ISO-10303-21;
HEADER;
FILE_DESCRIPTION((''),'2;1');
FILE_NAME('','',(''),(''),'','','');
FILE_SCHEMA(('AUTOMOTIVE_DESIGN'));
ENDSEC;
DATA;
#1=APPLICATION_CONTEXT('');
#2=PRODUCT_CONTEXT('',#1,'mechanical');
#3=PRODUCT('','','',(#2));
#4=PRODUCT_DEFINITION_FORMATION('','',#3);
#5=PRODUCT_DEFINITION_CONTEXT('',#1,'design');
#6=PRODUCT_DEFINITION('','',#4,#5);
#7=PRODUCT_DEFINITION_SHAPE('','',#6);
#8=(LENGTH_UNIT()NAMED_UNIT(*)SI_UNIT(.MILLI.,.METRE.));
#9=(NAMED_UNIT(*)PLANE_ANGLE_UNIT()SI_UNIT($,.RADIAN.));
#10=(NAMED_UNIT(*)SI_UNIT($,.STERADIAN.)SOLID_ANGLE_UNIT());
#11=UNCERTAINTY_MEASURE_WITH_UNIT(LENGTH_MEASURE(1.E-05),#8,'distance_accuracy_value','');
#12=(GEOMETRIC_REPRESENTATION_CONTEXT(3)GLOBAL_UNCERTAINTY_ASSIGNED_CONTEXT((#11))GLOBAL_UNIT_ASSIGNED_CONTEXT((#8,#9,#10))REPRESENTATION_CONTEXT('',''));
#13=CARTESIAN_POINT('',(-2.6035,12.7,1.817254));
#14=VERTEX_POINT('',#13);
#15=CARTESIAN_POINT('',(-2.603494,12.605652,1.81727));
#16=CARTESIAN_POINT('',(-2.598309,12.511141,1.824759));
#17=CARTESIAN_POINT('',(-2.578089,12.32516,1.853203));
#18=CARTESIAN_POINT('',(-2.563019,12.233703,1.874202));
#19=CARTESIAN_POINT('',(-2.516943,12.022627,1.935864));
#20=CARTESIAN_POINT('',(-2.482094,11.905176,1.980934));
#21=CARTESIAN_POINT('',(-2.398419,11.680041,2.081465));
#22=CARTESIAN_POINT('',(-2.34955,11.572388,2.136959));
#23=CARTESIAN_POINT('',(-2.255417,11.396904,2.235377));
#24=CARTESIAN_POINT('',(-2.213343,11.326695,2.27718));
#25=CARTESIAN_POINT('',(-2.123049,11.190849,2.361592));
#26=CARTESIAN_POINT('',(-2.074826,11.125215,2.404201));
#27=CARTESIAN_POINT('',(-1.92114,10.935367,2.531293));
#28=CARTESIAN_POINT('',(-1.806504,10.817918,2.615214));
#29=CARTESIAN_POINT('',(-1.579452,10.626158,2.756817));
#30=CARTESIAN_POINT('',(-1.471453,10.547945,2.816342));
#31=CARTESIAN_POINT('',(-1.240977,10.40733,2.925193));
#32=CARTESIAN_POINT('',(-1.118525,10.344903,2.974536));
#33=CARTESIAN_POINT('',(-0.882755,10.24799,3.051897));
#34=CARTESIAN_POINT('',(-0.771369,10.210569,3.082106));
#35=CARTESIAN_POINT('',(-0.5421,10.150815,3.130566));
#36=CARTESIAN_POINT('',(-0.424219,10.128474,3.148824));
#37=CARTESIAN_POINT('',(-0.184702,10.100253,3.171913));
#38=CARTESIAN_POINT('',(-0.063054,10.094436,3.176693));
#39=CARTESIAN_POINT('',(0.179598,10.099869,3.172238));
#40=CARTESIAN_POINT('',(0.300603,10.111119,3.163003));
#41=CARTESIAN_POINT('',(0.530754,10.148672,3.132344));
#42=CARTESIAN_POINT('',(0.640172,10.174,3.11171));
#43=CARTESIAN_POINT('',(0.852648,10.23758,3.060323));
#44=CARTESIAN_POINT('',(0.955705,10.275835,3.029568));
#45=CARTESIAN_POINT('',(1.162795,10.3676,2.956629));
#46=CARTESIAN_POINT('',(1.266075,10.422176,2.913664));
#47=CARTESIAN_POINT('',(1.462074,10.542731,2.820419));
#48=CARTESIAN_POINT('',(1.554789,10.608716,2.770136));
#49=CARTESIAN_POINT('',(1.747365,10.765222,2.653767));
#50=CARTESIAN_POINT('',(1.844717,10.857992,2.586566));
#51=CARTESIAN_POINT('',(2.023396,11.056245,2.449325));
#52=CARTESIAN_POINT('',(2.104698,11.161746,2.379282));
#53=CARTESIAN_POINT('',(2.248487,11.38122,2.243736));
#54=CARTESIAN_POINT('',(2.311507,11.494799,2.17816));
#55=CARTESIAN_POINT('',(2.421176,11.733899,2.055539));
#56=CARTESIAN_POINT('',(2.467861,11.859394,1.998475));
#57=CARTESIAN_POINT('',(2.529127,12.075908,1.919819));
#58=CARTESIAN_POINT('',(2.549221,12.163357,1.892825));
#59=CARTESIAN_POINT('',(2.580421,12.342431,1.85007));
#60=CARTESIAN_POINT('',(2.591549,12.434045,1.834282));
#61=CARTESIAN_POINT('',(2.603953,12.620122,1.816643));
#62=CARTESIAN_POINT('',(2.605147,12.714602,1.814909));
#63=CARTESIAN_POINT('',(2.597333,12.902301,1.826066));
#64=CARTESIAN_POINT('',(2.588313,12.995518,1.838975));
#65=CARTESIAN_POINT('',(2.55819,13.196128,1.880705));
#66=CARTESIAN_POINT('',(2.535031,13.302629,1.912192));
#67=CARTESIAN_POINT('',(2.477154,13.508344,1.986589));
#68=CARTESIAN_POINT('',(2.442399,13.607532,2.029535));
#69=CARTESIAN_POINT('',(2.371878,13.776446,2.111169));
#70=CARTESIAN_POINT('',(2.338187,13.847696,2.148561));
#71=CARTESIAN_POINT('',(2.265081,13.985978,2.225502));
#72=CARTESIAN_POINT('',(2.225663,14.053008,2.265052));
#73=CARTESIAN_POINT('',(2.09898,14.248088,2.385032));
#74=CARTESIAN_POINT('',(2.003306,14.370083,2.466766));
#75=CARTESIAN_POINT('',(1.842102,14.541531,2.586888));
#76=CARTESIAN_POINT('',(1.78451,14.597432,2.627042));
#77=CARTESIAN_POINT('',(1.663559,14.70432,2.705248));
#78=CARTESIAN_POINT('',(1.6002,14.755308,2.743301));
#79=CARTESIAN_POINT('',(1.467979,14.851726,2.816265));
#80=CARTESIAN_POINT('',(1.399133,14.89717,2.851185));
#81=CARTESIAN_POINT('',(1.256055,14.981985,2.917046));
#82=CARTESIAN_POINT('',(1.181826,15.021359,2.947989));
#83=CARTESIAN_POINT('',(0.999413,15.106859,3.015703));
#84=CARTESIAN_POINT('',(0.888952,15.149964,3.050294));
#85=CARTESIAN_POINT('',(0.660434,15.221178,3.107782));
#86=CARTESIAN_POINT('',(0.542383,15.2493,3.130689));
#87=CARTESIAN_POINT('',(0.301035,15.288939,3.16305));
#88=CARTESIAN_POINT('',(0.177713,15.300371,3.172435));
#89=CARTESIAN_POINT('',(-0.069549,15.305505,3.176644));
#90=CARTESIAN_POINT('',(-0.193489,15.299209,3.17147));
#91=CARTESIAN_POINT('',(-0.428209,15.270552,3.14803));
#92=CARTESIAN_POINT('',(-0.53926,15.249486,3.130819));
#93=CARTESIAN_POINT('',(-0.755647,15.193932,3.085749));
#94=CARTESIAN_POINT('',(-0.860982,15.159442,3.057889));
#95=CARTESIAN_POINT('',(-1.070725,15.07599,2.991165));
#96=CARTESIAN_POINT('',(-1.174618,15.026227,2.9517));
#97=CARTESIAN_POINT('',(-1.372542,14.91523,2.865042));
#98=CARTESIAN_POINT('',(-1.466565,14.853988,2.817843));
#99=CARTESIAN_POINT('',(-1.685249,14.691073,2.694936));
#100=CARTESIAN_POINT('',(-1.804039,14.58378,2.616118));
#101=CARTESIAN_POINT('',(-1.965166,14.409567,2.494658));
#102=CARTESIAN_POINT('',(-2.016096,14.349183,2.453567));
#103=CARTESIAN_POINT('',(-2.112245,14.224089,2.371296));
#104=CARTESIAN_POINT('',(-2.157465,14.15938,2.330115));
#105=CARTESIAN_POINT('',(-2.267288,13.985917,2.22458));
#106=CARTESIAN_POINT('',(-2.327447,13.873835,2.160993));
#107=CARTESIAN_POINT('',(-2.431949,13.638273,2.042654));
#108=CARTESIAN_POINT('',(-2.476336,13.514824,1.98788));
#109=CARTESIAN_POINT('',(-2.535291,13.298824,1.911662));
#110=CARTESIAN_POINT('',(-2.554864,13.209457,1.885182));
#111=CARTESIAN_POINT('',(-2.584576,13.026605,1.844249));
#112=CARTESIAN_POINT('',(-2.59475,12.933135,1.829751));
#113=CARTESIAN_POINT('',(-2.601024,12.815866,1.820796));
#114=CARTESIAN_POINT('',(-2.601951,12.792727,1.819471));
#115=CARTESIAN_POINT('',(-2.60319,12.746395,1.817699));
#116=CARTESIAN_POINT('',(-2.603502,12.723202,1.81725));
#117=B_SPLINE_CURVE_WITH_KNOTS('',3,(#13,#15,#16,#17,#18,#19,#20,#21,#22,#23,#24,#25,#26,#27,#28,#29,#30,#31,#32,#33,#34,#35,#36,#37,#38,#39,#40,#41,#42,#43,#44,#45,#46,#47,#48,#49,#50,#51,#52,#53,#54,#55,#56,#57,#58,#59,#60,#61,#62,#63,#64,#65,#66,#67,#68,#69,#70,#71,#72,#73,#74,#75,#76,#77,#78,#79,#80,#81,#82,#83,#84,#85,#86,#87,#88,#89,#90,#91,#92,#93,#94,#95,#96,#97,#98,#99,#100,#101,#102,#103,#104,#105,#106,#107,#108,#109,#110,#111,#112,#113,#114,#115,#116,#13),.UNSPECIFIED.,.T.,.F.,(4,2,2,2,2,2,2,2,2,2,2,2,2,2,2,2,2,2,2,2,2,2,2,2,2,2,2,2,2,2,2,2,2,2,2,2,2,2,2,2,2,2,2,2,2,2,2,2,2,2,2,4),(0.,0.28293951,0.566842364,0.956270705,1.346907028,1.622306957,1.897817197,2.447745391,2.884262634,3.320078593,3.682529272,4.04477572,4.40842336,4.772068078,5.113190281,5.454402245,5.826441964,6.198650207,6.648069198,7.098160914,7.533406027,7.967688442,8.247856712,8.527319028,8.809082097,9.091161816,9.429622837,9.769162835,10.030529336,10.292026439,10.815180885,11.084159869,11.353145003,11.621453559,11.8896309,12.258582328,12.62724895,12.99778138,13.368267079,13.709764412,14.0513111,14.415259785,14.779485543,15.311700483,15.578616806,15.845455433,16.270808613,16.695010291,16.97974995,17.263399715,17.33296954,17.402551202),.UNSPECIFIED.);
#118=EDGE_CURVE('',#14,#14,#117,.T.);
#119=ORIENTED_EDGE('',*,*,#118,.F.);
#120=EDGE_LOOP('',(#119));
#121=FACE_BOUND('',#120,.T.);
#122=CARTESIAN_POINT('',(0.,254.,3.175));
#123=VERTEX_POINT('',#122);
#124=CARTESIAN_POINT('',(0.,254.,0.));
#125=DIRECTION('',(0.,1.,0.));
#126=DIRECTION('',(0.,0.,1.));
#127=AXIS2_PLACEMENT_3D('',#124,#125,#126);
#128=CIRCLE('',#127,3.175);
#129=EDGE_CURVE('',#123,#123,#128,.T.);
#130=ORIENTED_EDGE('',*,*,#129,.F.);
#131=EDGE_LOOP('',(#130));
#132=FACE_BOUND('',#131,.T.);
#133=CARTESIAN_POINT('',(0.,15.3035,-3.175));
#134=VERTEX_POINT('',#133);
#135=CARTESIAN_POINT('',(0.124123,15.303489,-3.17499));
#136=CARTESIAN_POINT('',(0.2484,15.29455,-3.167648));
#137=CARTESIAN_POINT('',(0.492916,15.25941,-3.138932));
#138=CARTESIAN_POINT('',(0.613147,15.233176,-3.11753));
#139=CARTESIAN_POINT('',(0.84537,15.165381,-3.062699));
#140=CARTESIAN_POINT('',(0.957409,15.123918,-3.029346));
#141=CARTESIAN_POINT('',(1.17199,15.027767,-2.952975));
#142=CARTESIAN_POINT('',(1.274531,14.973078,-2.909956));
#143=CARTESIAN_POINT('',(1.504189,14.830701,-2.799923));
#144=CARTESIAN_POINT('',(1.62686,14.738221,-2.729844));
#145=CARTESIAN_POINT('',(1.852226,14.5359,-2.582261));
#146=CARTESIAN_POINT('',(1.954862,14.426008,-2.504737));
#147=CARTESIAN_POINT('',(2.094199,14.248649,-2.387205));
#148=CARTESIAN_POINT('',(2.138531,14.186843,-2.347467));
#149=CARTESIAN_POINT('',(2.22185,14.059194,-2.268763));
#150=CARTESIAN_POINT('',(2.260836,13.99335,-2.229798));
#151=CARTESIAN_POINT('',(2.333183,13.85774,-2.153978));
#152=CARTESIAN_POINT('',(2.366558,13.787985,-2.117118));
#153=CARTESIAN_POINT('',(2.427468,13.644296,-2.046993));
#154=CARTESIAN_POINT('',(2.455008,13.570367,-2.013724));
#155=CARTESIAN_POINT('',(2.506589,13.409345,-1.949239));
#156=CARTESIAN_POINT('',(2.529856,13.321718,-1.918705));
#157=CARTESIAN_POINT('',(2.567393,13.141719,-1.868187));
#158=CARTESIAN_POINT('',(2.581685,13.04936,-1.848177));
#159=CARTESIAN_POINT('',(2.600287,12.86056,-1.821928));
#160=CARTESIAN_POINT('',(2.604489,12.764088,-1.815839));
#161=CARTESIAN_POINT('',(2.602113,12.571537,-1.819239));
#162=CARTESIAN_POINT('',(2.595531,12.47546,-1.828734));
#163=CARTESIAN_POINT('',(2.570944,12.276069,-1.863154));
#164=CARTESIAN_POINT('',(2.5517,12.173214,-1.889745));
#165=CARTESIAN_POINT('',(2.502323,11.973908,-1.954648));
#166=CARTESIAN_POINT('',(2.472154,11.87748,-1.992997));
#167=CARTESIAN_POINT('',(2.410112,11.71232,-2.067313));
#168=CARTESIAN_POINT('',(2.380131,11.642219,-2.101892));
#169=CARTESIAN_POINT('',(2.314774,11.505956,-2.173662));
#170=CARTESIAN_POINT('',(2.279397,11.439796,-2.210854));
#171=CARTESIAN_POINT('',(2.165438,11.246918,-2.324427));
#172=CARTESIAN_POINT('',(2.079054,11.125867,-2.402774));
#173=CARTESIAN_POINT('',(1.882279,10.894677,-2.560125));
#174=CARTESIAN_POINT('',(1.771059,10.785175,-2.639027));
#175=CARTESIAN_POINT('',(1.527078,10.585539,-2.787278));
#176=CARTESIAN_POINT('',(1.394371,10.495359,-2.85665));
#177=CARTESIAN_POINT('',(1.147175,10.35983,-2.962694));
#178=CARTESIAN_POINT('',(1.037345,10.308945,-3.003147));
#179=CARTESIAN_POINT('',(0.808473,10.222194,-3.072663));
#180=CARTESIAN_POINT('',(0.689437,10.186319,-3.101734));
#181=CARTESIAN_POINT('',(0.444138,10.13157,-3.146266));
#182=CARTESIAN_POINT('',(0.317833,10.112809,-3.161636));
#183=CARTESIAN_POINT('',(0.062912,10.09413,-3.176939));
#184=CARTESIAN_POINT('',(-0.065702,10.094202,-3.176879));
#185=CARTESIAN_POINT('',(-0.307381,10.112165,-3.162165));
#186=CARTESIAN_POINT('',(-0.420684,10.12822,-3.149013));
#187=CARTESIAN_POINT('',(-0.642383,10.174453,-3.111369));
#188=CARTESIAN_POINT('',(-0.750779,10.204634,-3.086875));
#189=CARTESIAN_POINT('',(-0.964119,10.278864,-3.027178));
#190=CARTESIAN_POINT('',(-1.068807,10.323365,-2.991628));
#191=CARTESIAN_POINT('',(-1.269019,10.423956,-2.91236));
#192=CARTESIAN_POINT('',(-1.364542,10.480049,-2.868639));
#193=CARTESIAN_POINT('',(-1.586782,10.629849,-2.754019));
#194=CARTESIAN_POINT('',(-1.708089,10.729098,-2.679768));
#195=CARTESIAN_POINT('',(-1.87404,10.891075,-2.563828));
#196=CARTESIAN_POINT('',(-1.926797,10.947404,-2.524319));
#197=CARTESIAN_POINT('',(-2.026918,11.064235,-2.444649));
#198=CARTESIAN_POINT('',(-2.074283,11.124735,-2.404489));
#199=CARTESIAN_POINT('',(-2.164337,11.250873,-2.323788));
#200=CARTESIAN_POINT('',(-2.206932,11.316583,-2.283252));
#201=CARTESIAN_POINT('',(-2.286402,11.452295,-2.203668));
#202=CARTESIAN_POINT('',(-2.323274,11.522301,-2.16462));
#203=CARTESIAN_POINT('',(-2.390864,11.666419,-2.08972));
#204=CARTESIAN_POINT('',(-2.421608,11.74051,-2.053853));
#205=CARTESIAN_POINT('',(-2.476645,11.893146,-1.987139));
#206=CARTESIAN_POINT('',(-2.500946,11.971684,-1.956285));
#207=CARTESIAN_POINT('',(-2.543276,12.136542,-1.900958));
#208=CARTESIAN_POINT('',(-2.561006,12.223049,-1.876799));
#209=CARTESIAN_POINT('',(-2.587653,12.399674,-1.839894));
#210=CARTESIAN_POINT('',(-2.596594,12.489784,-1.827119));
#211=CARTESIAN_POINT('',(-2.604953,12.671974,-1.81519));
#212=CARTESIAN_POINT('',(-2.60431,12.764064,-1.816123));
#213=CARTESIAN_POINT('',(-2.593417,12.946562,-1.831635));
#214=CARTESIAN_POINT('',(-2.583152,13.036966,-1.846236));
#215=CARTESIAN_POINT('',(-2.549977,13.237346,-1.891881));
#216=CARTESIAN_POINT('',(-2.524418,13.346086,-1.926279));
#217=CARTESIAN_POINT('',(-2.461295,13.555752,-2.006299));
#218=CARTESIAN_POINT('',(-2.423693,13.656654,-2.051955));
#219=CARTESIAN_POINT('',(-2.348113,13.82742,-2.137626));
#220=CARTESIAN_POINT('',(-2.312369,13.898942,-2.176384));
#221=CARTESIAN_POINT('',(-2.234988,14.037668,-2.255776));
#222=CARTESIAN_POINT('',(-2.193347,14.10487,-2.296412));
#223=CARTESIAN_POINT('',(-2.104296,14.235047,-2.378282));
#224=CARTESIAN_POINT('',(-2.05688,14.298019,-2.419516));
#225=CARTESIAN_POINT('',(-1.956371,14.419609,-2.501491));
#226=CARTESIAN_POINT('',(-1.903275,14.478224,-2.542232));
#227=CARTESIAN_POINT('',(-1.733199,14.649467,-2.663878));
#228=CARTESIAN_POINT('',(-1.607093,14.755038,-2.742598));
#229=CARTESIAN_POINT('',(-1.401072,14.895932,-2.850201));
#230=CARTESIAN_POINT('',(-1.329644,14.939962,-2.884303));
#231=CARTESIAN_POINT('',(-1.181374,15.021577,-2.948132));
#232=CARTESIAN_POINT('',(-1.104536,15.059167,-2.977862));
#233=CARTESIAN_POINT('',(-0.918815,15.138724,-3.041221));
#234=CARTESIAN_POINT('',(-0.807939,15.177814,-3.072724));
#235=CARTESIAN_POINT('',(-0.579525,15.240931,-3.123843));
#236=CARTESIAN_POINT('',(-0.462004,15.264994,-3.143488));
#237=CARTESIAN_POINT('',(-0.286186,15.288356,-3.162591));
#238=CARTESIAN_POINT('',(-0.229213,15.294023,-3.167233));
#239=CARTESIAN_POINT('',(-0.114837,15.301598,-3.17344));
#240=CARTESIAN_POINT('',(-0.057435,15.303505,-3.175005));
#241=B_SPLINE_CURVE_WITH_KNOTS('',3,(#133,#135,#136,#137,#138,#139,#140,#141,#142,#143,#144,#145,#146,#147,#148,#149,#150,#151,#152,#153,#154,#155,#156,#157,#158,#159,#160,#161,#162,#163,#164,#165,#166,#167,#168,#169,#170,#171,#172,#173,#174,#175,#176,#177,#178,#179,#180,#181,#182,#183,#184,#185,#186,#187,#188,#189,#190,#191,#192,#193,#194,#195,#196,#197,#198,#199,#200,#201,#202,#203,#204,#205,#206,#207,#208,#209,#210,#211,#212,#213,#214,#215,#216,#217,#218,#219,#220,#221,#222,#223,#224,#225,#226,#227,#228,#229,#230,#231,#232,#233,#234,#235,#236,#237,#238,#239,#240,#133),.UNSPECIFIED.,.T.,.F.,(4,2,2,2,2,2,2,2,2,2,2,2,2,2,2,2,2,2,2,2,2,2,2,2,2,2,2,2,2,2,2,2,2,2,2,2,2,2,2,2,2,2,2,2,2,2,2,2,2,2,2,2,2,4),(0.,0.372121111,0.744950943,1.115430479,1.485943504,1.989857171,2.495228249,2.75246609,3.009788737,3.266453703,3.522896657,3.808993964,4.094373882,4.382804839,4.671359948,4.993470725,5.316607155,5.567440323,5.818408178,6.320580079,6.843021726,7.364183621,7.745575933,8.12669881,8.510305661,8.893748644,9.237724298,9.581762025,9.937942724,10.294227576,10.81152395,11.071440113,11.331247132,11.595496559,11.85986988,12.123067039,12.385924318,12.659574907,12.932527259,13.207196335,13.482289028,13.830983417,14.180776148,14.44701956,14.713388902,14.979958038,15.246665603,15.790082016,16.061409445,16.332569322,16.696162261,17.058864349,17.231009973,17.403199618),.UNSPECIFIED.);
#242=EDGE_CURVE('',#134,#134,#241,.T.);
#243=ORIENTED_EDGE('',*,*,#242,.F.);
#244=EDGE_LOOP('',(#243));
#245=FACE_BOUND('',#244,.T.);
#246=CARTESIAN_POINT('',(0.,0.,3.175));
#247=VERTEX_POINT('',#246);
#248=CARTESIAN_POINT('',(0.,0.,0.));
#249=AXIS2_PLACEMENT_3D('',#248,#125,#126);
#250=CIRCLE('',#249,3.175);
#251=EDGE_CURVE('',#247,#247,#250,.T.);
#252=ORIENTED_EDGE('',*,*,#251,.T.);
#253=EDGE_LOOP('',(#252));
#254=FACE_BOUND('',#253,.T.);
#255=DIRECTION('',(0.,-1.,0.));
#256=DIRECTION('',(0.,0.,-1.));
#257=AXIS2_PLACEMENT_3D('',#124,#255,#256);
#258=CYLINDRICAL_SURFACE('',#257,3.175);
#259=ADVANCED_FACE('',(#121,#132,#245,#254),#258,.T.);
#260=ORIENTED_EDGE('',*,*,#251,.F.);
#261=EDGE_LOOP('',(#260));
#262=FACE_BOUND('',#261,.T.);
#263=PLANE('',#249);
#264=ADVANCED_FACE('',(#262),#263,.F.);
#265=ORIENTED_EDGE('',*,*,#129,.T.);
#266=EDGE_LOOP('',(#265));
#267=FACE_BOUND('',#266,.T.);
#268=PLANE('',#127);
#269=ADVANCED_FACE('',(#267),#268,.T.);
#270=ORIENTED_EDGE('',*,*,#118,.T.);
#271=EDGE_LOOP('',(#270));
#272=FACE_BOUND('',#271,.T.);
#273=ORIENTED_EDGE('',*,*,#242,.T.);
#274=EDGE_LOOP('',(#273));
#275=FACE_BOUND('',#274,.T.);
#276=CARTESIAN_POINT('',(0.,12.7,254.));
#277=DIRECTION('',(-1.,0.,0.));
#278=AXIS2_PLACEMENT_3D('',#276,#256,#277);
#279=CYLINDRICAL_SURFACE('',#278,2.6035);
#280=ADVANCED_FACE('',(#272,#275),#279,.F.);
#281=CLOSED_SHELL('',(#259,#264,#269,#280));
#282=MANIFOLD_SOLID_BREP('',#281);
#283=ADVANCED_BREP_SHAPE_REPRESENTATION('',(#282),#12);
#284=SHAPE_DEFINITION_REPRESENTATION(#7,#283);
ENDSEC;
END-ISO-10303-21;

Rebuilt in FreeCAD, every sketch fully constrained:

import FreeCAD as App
import Part
import Sketcher

V = App.Vector
Q = App.Units.Quantity

doc = App.newDocument("Part")
body = doc.addObject("PartDesign::Body", "Body")

# Sketch on XZ plane
sketch1 = body.newObject("Sketcher::SketchObject", "Sketch")
sketch1.AttachmentSupport = (doc.getObject("XZ_Plane"), [""])
sketch1.MapMode = "FlatFace"
sketch1.addGeometry(Part.Circle(V(0, 0, 0), V(0, 0, 1), 3.2), False)
sketch1.addConstraint([
    Sketcher.Constraint("Coincident", 0, 3, -1, 1),
    Sketcher.Constraint("Diameter", 0, Q("0.25 in")),
])
pad1 = body.newObject("PartDesign::Pad", "Pad")
pad1.Profile = sketch1
pad1.Length = Q("10 in")
pad1.Reversed = True

# Sketch on XY plane
sketch2 = body.newObject("Sketcher::SketchObject", "Sketch001")
sketch2.AttachmentSupport = (doc.getObject("XY_Plane"), [""])
sketch2.MapMode = "FlatFace"
sketch2.addGeometry(Part.Circle(V(0, 12.7, 0), V(0, 0, 1), 2.6), False)
sketch2.addConstraint([
    Sketcher.Constraint("PointOnObject", 0, 3, -2),
    Sketcher.Constraint("Diameter", 0, Q("0.205 in")),
    Sketcher.Constraint("DistanceY", -1, 1, 0, 3, Q("0.5 in")),
])
pocket1 = body.newObject("PartDesign::Pocket", "Pocket")
pocket1.Profile = sketch2
pocket1.Type = "ThroughAll"
pocket1.Midplane = True

doc.recompute()
